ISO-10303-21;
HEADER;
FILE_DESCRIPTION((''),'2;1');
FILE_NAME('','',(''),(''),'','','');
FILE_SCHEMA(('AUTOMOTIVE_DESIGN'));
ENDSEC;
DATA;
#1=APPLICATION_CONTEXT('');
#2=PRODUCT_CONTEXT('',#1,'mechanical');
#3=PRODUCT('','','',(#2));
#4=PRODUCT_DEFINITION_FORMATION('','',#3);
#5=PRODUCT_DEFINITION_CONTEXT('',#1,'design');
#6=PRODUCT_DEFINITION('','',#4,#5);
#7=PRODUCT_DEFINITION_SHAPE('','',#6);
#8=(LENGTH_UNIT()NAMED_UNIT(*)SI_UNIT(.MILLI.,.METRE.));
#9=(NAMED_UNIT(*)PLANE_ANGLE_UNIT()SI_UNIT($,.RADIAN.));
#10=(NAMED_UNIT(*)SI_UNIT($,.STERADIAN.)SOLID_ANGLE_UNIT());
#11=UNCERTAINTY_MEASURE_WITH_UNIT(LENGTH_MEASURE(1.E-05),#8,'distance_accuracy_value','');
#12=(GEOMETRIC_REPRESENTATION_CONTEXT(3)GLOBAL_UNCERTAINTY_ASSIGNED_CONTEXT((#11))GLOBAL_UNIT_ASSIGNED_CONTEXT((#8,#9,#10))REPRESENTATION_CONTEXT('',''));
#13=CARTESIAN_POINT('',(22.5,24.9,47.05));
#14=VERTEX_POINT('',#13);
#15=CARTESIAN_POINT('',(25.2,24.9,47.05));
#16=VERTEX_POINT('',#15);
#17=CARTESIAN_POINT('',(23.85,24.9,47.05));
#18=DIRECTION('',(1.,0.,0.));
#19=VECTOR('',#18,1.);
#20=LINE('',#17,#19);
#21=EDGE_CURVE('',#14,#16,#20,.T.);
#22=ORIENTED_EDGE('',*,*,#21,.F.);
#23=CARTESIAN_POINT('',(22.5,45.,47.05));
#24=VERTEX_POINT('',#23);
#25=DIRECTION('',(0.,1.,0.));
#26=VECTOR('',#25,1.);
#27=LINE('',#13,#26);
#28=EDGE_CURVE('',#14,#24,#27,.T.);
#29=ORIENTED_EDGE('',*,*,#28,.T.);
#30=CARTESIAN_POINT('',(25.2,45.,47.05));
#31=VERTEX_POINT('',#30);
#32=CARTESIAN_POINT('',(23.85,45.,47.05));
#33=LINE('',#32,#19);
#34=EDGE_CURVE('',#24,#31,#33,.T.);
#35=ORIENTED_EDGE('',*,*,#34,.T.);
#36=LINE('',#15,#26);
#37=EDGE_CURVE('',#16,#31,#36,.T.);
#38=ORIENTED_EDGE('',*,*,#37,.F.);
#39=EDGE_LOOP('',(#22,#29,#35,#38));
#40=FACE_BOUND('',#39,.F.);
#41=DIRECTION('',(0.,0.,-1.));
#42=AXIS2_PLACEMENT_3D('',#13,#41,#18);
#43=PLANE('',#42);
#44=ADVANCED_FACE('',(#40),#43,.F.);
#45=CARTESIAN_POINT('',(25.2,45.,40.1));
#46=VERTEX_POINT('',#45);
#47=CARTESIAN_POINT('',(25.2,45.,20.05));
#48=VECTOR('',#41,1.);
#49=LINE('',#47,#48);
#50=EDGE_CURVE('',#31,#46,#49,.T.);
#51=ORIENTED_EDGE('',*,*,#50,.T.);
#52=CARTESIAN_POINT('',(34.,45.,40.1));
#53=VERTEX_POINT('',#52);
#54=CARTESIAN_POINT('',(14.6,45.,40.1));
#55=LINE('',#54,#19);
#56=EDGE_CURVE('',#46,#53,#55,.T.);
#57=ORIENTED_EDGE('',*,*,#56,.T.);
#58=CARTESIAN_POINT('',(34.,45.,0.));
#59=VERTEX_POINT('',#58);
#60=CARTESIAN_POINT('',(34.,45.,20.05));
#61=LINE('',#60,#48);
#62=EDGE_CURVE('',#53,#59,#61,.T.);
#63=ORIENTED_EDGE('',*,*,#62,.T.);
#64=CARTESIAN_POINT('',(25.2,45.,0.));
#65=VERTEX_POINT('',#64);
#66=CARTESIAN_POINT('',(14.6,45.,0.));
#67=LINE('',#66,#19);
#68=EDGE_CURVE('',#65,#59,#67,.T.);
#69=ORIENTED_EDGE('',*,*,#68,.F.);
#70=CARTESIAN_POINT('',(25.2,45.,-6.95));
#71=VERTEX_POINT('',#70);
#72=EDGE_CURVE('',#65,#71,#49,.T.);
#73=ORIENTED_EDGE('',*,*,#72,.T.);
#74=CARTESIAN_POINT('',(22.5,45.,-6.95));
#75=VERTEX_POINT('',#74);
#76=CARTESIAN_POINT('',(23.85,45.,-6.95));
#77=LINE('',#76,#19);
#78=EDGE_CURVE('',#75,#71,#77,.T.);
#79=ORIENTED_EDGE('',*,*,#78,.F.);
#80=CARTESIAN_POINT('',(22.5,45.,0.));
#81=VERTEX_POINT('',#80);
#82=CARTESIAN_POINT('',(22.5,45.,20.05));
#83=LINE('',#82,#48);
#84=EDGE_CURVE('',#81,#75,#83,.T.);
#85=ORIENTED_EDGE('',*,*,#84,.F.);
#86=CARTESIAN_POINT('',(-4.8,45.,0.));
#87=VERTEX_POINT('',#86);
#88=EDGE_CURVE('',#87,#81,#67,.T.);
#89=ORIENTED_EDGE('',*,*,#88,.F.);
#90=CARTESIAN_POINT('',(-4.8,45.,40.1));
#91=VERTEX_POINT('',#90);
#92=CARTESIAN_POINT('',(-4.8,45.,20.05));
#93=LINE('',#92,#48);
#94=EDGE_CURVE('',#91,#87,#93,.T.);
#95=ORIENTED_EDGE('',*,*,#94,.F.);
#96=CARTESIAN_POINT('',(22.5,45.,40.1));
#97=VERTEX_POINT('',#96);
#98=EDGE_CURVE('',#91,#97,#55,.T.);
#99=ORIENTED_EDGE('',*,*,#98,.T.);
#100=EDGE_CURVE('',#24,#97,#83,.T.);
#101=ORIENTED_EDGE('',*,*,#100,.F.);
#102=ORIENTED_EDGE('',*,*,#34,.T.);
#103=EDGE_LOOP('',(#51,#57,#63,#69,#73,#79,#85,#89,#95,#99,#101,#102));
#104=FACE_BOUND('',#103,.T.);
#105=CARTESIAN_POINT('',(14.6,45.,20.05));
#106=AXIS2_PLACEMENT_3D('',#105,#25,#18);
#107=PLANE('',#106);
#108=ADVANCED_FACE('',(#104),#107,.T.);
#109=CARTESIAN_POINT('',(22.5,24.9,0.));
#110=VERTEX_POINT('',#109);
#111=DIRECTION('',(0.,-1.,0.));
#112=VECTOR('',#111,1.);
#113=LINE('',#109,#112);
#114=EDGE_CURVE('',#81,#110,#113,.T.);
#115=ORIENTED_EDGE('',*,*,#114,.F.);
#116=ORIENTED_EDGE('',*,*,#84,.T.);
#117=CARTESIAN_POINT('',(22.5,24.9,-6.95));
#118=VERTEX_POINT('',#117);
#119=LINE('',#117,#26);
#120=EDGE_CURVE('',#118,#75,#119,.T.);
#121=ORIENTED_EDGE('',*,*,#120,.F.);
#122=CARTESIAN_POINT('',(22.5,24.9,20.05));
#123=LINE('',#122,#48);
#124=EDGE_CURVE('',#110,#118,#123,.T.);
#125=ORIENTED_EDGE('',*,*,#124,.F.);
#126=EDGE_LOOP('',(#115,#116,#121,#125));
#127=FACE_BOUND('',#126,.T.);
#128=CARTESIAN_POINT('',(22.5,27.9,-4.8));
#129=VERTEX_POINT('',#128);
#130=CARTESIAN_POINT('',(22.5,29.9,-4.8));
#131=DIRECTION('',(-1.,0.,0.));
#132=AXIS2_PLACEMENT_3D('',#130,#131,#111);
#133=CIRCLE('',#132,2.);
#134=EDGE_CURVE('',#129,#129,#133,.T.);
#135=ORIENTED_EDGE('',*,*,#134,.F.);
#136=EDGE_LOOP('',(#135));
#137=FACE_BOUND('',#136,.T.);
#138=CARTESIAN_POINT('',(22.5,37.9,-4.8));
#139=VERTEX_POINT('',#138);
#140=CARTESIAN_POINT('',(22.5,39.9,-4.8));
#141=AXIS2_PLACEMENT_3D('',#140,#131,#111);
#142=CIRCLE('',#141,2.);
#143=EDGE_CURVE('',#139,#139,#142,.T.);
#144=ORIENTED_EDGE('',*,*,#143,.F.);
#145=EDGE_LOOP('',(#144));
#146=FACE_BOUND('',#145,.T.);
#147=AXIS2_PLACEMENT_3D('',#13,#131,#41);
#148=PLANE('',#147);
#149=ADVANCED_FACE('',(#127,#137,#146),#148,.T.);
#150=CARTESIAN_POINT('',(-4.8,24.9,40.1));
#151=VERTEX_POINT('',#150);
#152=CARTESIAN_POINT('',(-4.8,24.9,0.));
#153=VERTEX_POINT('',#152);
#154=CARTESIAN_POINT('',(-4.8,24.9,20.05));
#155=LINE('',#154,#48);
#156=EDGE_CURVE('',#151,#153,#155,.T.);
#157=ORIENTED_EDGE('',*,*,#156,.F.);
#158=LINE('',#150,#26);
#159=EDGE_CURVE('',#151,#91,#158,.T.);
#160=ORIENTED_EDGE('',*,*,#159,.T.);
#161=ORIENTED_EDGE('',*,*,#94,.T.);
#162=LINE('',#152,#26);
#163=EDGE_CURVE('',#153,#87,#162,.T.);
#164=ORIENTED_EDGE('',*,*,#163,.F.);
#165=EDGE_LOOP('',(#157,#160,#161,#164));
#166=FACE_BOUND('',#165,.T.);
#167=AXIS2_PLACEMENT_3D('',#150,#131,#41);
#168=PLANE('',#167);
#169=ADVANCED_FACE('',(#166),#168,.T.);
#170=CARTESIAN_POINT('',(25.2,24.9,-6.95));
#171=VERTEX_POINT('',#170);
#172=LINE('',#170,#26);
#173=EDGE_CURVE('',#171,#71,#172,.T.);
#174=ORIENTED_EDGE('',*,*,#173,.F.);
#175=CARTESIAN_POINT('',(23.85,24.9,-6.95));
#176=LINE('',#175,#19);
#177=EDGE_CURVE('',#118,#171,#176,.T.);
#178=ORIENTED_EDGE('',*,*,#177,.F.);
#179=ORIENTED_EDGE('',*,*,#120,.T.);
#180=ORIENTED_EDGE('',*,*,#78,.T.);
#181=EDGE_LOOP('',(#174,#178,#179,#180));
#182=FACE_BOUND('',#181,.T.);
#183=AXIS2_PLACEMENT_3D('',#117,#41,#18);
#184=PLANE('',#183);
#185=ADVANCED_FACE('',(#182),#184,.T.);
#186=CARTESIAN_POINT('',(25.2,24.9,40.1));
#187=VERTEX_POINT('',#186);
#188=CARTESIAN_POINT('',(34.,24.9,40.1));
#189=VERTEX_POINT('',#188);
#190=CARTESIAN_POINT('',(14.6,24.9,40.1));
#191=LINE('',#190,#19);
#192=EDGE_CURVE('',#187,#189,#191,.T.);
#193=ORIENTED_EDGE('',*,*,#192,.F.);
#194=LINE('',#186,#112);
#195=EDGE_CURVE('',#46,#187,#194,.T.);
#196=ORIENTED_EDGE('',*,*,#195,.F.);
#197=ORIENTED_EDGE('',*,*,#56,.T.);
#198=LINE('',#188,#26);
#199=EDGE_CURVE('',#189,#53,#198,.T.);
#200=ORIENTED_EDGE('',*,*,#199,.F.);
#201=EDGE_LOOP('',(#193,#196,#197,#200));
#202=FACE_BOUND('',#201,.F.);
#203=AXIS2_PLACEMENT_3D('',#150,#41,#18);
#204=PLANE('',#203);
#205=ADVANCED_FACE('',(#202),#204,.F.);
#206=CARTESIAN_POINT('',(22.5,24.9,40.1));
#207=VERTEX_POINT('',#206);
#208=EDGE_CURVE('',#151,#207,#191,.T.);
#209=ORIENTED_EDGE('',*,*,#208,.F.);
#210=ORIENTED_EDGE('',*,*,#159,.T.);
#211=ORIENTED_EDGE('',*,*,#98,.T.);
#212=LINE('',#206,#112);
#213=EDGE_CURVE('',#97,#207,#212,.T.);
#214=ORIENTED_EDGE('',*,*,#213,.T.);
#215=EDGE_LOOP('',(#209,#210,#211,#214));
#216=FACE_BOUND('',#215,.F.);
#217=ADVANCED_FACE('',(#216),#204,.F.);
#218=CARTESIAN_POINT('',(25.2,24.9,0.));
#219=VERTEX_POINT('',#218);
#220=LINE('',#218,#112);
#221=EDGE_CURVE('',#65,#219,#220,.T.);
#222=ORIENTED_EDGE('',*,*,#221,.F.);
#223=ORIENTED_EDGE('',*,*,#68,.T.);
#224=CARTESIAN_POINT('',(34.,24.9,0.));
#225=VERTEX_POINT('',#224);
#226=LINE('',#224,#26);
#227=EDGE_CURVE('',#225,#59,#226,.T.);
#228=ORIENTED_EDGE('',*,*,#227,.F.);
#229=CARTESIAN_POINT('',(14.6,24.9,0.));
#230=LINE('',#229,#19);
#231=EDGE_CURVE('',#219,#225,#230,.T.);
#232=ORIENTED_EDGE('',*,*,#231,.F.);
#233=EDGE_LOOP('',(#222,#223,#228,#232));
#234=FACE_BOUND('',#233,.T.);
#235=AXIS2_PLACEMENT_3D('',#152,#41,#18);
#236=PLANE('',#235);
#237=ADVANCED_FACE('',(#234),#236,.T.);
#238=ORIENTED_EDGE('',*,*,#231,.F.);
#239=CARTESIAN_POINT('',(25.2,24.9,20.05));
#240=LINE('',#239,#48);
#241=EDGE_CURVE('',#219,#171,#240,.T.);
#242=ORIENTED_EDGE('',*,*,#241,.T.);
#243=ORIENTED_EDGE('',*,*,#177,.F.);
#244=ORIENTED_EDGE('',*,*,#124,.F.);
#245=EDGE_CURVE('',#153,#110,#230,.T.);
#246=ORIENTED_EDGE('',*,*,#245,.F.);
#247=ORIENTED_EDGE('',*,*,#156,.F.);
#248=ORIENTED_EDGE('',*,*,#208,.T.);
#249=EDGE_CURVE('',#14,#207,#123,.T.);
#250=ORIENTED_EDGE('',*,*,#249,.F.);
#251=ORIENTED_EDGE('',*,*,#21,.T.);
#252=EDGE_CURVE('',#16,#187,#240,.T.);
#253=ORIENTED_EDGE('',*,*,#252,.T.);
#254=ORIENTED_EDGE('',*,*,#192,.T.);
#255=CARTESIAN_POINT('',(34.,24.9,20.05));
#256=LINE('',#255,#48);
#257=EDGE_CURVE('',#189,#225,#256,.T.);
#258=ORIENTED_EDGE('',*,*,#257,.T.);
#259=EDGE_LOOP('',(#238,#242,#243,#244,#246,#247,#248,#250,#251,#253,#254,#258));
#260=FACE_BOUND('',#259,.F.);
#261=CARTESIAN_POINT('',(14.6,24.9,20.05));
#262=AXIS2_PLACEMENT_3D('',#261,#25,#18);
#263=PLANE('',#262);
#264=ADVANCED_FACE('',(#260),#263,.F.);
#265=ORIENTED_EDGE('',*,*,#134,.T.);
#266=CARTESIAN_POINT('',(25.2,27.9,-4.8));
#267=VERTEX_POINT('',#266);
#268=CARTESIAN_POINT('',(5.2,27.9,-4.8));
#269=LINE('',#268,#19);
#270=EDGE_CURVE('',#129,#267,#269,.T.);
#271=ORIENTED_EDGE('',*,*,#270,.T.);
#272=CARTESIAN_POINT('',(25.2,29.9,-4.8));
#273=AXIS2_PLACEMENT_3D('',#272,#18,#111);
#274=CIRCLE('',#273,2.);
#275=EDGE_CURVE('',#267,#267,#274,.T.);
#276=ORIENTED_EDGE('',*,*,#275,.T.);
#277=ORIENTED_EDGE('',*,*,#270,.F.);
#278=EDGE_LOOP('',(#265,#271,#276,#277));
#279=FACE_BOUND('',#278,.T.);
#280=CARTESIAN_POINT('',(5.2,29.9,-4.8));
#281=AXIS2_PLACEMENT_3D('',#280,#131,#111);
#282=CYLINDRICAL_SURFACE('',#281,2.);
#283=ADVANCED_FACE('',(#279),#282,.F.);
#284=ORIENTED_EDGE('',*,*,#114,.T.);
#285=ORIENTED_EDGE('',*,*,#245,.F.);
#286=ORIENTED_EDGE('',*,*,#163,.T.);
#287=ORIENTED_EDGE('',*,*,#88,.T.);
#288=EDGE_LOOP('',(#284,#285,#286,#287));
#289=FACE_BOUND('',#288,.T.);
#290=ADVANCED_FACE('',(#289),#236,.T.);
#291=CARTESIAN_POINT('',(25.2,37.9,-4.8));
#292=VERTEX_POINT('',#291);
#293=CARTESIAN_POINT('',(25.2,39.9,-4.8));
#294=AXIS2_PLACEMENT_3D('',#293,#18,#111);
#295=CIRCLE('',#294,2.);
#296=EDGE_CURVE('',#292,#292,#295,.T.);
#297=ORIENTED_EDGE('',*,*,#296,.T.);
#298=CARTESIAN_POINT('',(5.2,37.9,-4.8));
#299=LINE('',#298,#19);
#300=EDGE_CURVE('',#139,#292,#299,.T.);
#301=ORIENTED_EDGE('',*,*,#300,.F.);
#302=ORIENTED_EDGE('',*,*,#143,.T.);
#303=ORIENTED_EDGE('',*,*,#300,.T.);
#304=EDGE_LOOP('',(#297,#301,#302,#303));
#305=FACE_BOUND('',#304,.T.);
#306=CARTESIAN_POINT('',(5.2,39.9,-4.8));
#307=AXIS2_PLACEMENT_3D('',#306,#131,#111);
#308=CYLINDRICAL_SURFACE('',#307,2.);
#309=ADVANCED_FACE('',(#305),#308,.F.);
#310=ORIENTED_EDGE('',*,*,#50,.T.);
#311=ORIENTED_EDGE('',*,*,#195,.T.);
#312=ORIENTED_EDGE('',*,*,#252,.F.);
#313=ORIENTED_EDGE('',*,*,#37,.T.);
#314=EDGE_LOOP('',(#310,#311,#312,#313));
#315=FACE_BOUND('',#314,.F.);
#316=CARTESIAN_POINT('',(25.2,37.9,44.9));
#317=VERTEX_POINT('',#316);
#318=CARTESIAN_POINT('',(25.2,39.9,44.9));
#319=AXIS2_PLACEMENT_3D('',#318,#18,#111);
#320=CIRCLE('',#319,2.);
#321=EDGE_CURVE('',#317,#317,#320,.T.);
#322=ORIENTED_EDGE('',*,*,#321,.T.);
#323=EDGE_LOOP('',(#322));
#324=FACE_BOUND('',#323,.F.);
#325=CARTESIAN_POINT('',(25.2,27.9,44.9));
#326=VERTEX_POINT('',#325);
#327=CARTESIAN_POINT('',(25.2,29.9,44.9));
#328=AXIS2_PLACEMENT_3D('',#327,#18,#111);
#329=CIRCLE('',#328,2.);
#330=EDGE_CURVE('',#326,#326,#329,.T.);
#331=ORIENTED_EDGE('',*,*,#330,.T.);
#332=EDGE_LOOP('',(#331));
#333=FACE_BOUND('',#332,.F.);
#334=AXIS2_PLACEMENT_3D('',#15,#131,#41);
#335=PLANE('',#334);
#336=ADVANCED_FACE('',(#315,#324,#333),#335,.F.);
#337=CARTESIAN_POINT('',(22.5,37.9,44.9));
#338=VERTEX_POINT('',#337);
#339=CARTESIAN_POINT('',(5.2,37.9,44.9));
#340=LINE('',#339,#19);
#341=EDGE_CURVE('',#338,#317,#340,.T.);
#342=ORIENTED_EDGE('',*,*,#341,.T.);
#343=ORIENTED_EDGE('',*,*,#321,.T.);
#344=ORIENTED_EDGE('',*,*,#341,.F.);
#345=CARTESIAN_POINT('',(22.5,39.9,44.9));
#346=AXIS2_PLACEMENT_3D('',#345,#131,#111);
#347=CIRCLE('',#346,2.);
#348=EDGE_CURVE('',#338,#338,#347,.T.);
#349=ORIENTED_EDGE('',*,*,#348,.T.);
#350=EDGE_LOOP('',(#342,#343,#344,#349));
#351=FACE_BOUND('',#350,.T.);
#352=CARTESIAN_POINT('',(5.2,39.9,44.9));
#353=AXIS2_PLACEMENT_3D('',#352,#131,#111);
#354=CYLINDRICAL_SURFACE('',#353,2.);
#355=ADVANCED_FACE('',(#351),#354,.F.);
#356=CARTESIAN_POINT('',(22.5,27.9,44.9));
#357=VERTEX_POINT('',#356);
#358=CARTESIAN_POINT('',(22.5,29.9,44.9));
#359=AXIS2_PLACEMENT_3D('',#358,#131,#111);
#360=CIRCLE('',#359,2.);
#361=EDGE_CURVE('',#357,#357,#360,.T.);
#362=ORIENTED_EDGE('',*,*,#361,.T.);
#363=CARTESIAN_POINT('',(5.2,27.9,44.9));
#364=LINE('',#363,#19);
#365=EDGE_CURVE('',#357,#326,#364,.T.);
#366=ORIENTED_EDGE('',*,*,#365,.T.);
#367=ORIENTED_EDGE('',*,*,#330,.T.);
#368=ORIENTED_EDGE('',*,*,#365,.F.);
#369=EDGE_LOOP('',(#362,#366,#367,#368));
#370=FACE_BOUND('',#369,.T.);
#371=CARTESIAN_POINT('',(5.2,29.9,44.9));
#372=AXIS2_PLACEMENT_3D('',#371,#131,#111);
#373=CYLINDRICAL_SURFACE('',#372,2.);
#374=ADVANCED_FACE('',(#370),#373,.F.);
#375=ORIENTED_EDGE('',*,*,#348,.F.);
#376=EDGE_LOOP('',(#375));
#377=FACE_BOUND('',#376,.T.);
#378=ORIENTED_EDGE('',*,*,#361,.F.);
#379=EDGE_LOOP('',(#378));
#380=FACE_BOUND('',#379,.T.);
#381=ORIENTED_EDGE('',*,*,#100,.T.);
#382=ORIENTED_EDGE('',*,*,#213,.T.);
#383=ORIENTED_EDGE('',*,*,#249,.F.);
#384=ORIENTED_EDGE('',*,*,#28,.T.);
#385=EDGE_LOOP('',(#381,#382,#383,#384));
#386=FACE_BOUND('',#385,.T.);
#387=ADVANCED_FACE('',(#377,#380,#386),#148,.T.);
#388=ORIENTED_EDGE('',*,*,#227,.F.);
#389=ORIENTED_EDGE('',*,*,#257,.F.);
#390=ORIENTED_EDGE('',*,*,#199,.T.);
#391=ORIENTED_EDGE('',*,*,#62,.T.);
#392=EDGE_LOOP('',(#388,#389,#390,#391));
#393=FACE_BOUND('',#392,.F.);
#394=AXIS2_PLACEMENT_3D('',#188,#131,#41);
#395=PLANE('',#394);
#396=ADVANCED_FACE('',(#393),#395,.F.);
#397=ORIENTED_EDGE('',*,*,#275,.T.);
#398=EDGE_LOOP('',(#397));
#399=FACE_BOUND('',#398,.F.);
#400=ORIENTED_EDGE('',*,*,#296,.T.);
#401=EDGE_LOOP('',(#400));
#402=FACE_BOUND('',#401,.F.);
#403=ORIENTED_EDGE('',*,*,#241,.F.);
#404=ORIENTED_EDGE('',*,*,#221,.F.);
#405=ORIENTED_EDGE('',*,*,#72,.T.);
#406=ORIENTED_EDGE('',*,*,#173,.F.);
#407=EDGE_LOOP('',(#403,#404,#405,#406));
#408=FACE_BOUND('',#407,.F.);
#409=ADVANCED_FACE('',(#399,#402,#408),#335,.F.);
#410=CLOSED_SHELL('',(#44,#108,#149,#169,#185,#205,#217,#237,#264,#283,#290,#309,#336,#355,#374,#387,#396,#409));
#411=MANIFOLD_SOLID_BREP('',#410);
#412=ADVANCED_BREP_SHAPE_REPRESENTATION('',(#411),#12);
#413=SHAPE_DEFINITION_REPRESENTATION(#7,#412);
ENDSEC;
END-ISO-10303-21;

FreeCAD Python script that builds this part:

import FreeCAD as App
import Part
import Sketcher

V = App.Vector


def add_polygon(sketch, points):
    """Adds a closed chain of lines whose ends are joined by coincident constraints."""
    first, n = sketch.GeometryCount, len(points)
    for a, b in zip(points, points[1:] + points[:1]):
        sketch.addGeometry(Part.LineSegment(App.Vector(*a, 0), App.Vector(*b, 0)), False)
    for i in range(n):
        sketch.addConstraint(Sketcher.Constraint("Coincident", first + i, 2, first + (i + 1) % n, 1))

doc = App.newDocument("Part")
body = doc.addObject("PartDesign::Body", "Body")

# Sketch on YZ plane
sketch1 = body.newObject("Sketcher::SketchObject", "Sketch")
sketch1.AttachmentSupport = (doc.getObject("YZ_Plane"), [""])
sketch1.MapMode = "FlatFace"
sketch1.AttachmentOffset = App.Placement(V(0, 0, 9.4), App.Rotation())
sketch1.addGeometry(Part.Circle(V(2.2, 5, 0), V(0, 0, 1), 2), False)
sketch1.addConstraint(Sketcher.Constraint("Diameter", 0, 4.0))
sketch1.addConstraint(Sketcher.Constraint("DistanceY", -1, 1, 0, 3, 5.0))
sketch1.addConstraint(Sketcher.Constraint("DistanceX", -1, 1, 0, 3, 2.2))
pad1 = body.newObject("PartDesign::Pad", "Pad")
pad1.Profile = sketch1
pad1.Length = 20
body2 = doc.addObject("PartDesign::Body", "Body001")

# Sketch on YZ plane
sketch2 = body2.newObject("Sketcher::SketchObject", "Sketch001")
sketch2.AttachmentSupport = (doc.getObject("YZ_Plane001"), [""])
sketch2.MapMode = "FlatFace"
sketch2.AttachmentOffset = App.Placement(V(0, 0, 9.4), App.Rotation())
sketch2.addGeometry(Part.Circle(V(2.2, 15, 0), V(0, 0, 1), 2), False)
sketch2.addConstraint(Sketcher.Constraint("Diameter", 0, 4.0))
sketch2.addConstraint(Sketcher.Constraint("DistanceY", -1, 1, 0, 3, 15.0))
sketch2.addConstraint(Sketcher.Constraint("DistanceX", -1, 1, 0, 3, 2.2))
pad2 = body2.newObject("PartDesign::Pad", "Pad001")
pad2.Profile = sketch2
pad2.Length = 20
body3 = doc.addObject("PartDesign::Body", "Body002")

# Sketch on YZ plane
sketch3 = body3.newObject("Sketcher::SketchObject", "Sketch002")
sketch3.AttachmentSupport = (doc.getObject("YZ_Plane002"), [""])
sketch3.MapMode = "FlatFace"
sketch3.AttachmentOffset = App.Placement(V(0, 0, 9.4), App.Rotation())
sketch3.addGeometry(Part.Circle(V(51.9, 5, 0), V(0, 0, 1), 2), False)
sketch3.addConstraint(Sketcher.Constraint("Diameter", 0, 4.0))
sketch3.addConstraint(Sketcher.Constraint("DistanceY", -1, 1, 0, 3, 5.0))
sketch3.addConstraint(Sketcher.Constraint("DistanceX", -1, 1, 0, 3, 51.9))
pad3 = body3.newObject("PartDesign::Pad", "Pad002")
pad3.Profile = sketch3
pad3.Length = 20
body4 = doc.addObject("PartDesign::Body", "Body003")

# Sketch on YZ plane
sketch4 = body4.newObject("Sketcher::SketchObject", "Sketch003")
sketch4.AttachmentSupport = (doc.getObject("YZ_Plane003"), [""])
sketch4.MapMode = "FlatFace"
sketch4.AttachmentOffset = App.Placement(V(0, 0, 9.4), App.Rotation())
sketch4.addGeometry(Part.Circle(V(51.9, 15, 0), V(0, 0, 1), 2), False)
sketch4.addConstraint(Sketcher.Constraint("Diameter", 0, 4.0))
sketch4.addConstraint(Sketcher.Constraint("DistanceY", -1, 1, 0, 3, 15.0))
sketch4.addConstraint(Sketcher.Constraint("DistanceX", -1, 1, 0, 3, 51.9))
pad4 = body4.newObject("PartDesign::Pad", "Pad003")
pad4.Profile = sketch4
pad4.Length = 20
body5 = doc.addObject("PartDesign::Body", "Body004")

# Sketch on XY plane
sketch5 = body5.newObject("Sketcher::SketchObject", "Sketch004")
sketch5.AttachmentSupport = (doc.getObject("XY_Plane004"), [""])
sketch5.MapMode = "FlatFace"
add_polygon(sketch5, [(82, -53), (82, -93), (121, -93), (121, -53)])  # lines 0-3
sketch5.addConstraint(Sketcher.Constraint("Vertical", 0))
sketch5.addConstraint(Sketcher.Constraint("Horizontal", 1))
sketch5.addConstraint(Sketcher.Constraint("Vertical", 2))
sketch5.addConstraint(Sketcher.Constraint("Horizontal", 3))
sketch5.addConstraint(Sketcher.Constraint("DistanceX", 1, 1, 1, 2, 38.8))
sketch5.addConstraint(Sketcher.Constraint("DistanceY", 0, 2, 0, 1, 40.1))
sketch5.addConstraint(Sketcher.Constraint("DistanceX", -1, 1, 0, 2, 82.0))
sketch5.addConstraint(Sketcher.Constraint("DistanceY", 0, 2, -1, 1, 93.0))
pad5 = body5.newObject("PartDesign::Pad", "Pad004")
pad5.Profile = sketch5
pad5.Length = 20.1
body6 = doc.addObject("PartDesign::Body", "Body005")

# Sketch on XY plane
sketch6 = body6.newObject("Sketcher::SketchObject", "Sketch005")
sketch6.AttachmentSupport = (doc.getObject("XY_Plane005"), [""])
sketch6.MapMode = "FlatFace"
add_polygon(sketch6, [(109.3, -46), (109.3, -100), (112, -100), (112, -46)])  # lines 0-3
sketch6.addConstraint(Sketcher.Constraint("Vertical", 0))
sketch6.addConstraint(Sketcher.Constraint("Horizontal", 1))
sketch6.addConstraint(Sketcher.Constraint("Vertical", 2))
sketch6.addConstraint(Sketcher.Constraint("Horizontal", 3))
sketch6.addConstraint(Sketcher.Constraint("DistanceY", 0, 2, 0, 1, 54.0))
sketch6.addConstraint(Sketcher.Constraint("DistanceX", 1, 1, 1, 2, 2.7))
sketch6.addConstraint(Sketcher.Constraint("DistanceX", -1, 1, 1, 2, 112.0))
sketch6.addConstraint(Sketcher.Constraint("DistanceY", 0, 2, -1, 1, 99.95))
pad6 = body6.newObject("PartDesign::Pad", "Pad005")
pad6.Profile = sketch6
pad6.Length = 20.1
doc.recompute()

boolean = body6.newObject("PartDesign::Boolean", "Boolean")
boolean.Type = "Fuse"
boolean.addObjects([body5])
body7 = doc.addObject("PartDesign::Body", "Body006")
doc.recompute()

body6.Placement = App.Placement(V(-82.6, 100, 0), App.Rotation(V(0, 0, 1), 0))
boolean2 = body7.newObject("PartDesign::Boolean", "Boolean001")
boolean2.Type = "Fuse"
boolean2.addObjects([body6])
doc.recompute()

boolean3 = body7.newObject("PartDesign::Boolean", "Boolean002")
boolean3.Type = "Cut"
boolean3.addObjects([body4])
doc.recompute()

boolean4 = body7.newObject("PartDesign::Boolean", "Boolean003")
boolean4.Type = "Cut"
boolean4.addObjects([body3])
doc.recompute()

boolean5 = body7.newObject("PartDesign::Boolean", "Boolean004")
boolean5.Type = "Cut"
boolean5.addObjects([body2])
doc.recompute()

boolean6 = body7.newObject("PartDesign::Boolean", "Boolean005")
boolean6.Type = "Cut"
boolean6.addObjects([body])
body8 = doc.addObject("PartDesign::Body", "Body007")
doc.recompute()

body7.Placement = App.Placement(V(-4.2, 24.9, 47.1), App.Rotation(V(-1, 0, 0), 90))
boolean7 = body8.newObject("PartDesign::Boolean", "Boolean006")
boolean7.Type = "Fuse"
boolean7.addObjects([body7])

doc.recompute()
